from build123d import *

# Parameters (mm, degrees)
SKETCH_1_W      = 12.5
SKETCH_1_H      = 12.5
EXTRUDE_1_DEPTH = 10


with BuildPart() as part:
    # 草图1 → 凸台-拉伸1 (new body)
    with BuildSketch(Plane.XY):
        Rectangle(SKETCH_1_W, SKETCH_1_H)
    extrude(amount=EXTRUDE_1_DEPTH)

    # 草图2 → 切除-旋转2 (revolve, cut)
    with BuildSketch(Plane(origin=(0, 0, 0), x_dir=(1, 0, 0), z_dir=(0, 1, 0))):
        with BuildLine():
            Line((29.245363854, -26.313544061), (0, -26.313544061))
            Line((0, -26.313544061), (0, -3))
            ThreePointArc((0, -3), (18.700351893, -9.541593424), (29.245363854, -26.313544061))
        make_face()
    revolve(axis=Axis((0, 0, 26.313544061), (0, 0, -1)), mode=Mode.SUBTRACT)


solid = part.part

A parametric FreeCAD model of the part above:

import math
import FreeCAD as App
import Part
import Sketcher

V = App.Vector


def add_polygon(sketch, points):
    """Adds a closed chain of lines whose ends are joined by coincident constraints."""
    first, n = sketch.GeometryCount, len(points)
    for a, b in zip(points, points[1:] + points[:1]):
        sketch.addGeometry(Part.LineSegment(App.Vector(*a, 0), App.Vector(*b, 0)), False)
    for i in range(n):
        sketch.addConstraint(Sketcher.Constraint("Coincident", first + i, 2, first + (i + 1) % n, 1))

doc = App.newDocument("Part")
body = doc.addObject("PartDesign::Body", "Body")

# Sketch on XY plane
sketch1 = body.newObject("Sketcher::SketchObject", "Sketch")
sketch1.AttachmentSupport = (doc.getObject("XY_Plane"), [""])
sketch1.MapMode = "FlatFace"
add_polygon(sketch1, [(-6, 6), (-6, -6), (6, -6), (6, 6)])  # lines 0-3
sketch1.addConstraint([
    Sketcher.Constraint("Vertical", 0),
    Sketcher.Constraint("Horizontal", 1),
    Sketcher.Constraint("Vertical", 2),
    Sketcher.Constraint("Horizontal", 3),
    Sketcher.Constraint("Symmetric", 0, 2, 2, 2, -1, 1),
    Sketcher.Constraint("Equal", 3, 0),
    Sketcher.Constraint("DistanceX", 1, 1, 1, 2, 12.5),
])
pad1 = body.newObject("PartDesign::Pad", "Pad")
pad1.Profile = sketch1
pad1.Length = 10

# Sketch on XZ plane
sketch2 = body.newObject("Sketcher::SketchObject", "Sketch001")
sketch2.AttachmentSupport = (doc.getObject("XZ_Plane"), [""])
sketch2.MapMode = "FlatFace"
sketch2.addGeometry([
    Part.LineSegment(V(0, 26, 0), V(29, 26, 0)),
    Part.ArcOfCircle(Part.Circle(V(0, 33, 0), V(0, 0, 1), 30), math.radians(-90), math.radians(-13)),
    Part.LineSegment(V(0, 3, 0), V(0, 26, 0)),
], False)
sketch2.addConstraint([
    Sketcher.Constraint("Coincident", 0, 2, 1, 2),
    Sketcher.Constraint("Coincident", 1, 1, 2, 1),
    Sketcher.Constraint("Coincident", 2, 2, 0, 1),
    Sketcher.Constraint("Horizontal", 0),
    Sketcher.Constraint("Vertical", 2),
    Sketcher.Constraint("PointOnObject", 1, 3, -2),
    Sketcher.Constraint("PointOnObject", 1, 1, -2),
    Sketcher.Constraint("Radius", 1, 30.0),
    Sketcher.Constraint("DistanceY", -1, 1, 1, 3, 33.0),
    Sketcher.Constraint("DistanceX", 0, 1, 0, 2, 29.245364),
])
groove = body.newObject("PartDesign::Groove", "Groove")
groove.Profile = sketch2
groove.ReferenceAxis = (sketch2, ["V_Axis"])
groove.Angle = 360

doc.recompute()
